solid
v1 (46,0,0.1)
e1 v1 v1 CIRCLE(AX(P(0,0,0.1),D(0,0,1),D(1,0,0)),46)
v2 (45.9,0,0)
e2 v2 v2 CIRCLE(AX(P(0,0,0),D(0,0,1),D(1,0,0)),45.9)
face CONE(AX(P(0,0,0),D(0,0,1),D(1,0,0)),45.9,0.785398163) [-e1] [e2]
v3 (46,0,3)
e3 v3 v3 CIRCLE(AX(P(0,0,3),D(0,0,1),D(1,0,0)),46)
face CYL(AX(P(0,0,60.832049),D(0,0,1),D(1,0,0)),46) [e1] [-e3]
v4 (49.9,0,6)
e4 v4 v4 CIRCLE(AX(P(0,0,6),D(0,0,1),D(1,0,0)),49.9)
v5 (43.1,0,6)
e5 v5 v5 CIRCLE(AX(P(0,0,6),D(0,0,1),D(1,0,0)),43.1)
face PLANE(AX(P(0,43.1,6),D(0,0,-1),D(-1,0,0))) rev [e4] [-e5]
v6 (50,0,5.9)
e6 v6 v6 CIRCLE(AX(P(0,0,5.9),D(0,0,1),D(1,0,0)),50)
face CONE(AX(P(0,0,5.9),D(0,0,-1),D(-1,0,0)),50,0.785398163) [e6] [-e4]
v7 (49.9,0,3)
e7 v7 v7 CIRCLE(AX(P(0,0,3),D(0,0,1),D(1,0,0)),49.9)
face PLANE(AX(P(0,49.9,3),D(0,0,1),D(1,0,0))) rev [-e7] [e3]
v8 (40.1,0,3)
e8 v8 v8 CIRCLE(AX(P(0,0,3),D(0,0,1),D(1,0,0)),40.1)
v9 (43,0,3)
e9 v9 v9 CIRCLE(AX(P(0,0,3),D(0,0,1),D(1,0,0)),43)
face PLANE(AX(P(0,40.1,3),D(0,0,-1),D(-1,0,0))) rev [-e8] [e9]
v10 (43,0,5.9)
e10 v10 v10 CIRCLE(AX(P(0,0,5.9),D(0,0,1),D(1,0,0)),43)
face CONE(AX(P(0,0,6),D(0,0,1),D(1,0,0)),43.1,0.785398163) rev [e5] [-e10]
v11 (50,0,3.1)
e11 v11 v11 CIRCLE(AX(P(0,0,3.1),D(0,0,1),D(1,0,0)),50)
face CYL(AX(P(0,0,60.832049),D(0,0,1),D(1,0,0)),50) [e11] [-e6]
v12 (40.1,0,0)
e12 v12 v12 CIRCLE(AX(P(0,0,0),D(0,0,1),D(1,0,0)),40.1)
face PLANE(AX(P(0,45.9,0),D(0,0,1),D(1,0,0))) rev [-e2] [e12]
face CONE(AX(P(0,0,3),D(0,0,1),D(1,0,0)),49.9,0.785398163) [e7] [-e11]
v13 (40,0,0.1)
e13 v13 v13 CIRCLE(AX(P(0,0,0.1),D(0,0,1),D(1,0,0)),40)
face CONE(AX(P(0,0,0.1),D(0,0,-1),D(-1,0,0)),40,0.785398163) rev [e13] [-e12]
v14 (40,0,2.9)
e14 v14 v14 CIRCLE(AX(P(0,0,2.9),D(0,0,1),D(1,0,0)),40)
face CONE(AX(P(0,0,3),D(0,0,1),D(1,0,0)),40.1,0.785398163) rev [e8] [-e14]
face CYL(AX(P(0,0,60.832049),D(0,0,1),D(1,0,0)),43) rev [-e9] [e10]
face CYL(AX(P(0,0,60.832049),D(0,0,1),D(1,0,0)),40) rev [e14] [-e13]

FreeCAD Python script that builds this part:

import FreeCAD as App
import Part
import Sketcher

V = App.Vector


def add_polygon(sketch, points):
    """Adds a closed chain of lines whose ends are joined by coincident constraints."""
    first, n = sketch.GeometryCount, len(points)
    for a, b in zip(points, points[1:] + points[:1]):
        sketch.addGeometry(Part.LineSegment(App.Vector(*a, 0), App.Vector(*b, 0)), False)
    for i in range(n):
        sketch.addConstraint(Sketcher.Constraint("Coincident", first + i, 2, first + (i + 1) % n, 1))

doc = App.newDocument("Part")
body = doc.addObject("PartDesign::Body", "Body")

# Sketch on YZ plane
sketch1 = body.newObject("Sketcher::SketchObject", "Sketch")
sketch1.AttachmentSupport = (doc.getObject("YZ_Plane"), [""])
sketch1.MapMode = "FlatFace"
add_polygon(sketch1, [(40, 2.9), (40, 0.1), (40.1, 0), (45.9, 0), (46, 0.1), (46, 3), (49.9, 3), (50, 3.1), (50, 5.9), (49.9, 6), (43.1, 6), (43, 5.9), (43, 3), (40.1, 3)])  # lines 0-13
sketch1.addConstraint([
    Sketcher.Constraint("Vertical", 0),
    Sketcher.Constraint("Horizontal", 2),
    Sketcher.Constraint("Vertical", 4),
    Sketcher.Constraint("Horizontal", 5),
    Sketcher.Constraint("Vertical", 7),
    Sketcher.Constraint("Horizontal", 9),
    Sketcher.Constraint("Vertical", 11),
    Sketcher.Constraint("Horizontal", 12),
    Sketcher.Constraint("PointOnObject", 1, 2, -1),
    Sketcher.Constraint("Perpendicular", 1, 3),
    Sketcher.Constraint("Parallel", 3, 6),
    Sketcher.Constraint("Perpendicular", 6, 8),
    Sketcher.Constraint("Perpendicular", 8, 10),
    Sketcher.Constraint("Parallel", 10, 13),
    Sketcher.Constraint("Horizontal", 0, 2, 3, 2),
    Sketcher.Constraint("Horizontal", 7, 2, 10, 2),
    Sketcher.Constraint("Horizontal", 5, 2, 11, 2),
    Sketcher.Constraint("Vertical", 5, 2, 8, 2),
    Sketcher.Constraint("Vertical", 1, 2, 12, 2),
    Sketcher.Constraint("Equal", 12, 4),
    Sketcher.Constraint("Equal", 0, 7),
    Sketcher.Constraint("Equal", 4, 11),
    Sketcher.Constraint("Equal", 1, 3),
    Sketcher.Constraint("DistanceX", 2, 1, 2, 2, 5.8),
    Sketcher.Constraint("DistanceX", 5, 1, 5, 2, 3.9),
    Sketcher.Constraint("DistanceX", 9, 2, 9, 1, 6.8),
    Sketcher.Constraint("DistanceY", 0, 2, 0, 1, 2.8),
    Sketcher.Constraint("DistanceX", -1, 1, 0, 2, 40.0),
])
revolution = body.newObject("PartDesign::Revolution", "Revolution")
revolution.Profile = sketch1
revolution.ReferenceAxis = (sketch1, ["V_Axis"])
revolution.Angle = 360

doc.recompute()
